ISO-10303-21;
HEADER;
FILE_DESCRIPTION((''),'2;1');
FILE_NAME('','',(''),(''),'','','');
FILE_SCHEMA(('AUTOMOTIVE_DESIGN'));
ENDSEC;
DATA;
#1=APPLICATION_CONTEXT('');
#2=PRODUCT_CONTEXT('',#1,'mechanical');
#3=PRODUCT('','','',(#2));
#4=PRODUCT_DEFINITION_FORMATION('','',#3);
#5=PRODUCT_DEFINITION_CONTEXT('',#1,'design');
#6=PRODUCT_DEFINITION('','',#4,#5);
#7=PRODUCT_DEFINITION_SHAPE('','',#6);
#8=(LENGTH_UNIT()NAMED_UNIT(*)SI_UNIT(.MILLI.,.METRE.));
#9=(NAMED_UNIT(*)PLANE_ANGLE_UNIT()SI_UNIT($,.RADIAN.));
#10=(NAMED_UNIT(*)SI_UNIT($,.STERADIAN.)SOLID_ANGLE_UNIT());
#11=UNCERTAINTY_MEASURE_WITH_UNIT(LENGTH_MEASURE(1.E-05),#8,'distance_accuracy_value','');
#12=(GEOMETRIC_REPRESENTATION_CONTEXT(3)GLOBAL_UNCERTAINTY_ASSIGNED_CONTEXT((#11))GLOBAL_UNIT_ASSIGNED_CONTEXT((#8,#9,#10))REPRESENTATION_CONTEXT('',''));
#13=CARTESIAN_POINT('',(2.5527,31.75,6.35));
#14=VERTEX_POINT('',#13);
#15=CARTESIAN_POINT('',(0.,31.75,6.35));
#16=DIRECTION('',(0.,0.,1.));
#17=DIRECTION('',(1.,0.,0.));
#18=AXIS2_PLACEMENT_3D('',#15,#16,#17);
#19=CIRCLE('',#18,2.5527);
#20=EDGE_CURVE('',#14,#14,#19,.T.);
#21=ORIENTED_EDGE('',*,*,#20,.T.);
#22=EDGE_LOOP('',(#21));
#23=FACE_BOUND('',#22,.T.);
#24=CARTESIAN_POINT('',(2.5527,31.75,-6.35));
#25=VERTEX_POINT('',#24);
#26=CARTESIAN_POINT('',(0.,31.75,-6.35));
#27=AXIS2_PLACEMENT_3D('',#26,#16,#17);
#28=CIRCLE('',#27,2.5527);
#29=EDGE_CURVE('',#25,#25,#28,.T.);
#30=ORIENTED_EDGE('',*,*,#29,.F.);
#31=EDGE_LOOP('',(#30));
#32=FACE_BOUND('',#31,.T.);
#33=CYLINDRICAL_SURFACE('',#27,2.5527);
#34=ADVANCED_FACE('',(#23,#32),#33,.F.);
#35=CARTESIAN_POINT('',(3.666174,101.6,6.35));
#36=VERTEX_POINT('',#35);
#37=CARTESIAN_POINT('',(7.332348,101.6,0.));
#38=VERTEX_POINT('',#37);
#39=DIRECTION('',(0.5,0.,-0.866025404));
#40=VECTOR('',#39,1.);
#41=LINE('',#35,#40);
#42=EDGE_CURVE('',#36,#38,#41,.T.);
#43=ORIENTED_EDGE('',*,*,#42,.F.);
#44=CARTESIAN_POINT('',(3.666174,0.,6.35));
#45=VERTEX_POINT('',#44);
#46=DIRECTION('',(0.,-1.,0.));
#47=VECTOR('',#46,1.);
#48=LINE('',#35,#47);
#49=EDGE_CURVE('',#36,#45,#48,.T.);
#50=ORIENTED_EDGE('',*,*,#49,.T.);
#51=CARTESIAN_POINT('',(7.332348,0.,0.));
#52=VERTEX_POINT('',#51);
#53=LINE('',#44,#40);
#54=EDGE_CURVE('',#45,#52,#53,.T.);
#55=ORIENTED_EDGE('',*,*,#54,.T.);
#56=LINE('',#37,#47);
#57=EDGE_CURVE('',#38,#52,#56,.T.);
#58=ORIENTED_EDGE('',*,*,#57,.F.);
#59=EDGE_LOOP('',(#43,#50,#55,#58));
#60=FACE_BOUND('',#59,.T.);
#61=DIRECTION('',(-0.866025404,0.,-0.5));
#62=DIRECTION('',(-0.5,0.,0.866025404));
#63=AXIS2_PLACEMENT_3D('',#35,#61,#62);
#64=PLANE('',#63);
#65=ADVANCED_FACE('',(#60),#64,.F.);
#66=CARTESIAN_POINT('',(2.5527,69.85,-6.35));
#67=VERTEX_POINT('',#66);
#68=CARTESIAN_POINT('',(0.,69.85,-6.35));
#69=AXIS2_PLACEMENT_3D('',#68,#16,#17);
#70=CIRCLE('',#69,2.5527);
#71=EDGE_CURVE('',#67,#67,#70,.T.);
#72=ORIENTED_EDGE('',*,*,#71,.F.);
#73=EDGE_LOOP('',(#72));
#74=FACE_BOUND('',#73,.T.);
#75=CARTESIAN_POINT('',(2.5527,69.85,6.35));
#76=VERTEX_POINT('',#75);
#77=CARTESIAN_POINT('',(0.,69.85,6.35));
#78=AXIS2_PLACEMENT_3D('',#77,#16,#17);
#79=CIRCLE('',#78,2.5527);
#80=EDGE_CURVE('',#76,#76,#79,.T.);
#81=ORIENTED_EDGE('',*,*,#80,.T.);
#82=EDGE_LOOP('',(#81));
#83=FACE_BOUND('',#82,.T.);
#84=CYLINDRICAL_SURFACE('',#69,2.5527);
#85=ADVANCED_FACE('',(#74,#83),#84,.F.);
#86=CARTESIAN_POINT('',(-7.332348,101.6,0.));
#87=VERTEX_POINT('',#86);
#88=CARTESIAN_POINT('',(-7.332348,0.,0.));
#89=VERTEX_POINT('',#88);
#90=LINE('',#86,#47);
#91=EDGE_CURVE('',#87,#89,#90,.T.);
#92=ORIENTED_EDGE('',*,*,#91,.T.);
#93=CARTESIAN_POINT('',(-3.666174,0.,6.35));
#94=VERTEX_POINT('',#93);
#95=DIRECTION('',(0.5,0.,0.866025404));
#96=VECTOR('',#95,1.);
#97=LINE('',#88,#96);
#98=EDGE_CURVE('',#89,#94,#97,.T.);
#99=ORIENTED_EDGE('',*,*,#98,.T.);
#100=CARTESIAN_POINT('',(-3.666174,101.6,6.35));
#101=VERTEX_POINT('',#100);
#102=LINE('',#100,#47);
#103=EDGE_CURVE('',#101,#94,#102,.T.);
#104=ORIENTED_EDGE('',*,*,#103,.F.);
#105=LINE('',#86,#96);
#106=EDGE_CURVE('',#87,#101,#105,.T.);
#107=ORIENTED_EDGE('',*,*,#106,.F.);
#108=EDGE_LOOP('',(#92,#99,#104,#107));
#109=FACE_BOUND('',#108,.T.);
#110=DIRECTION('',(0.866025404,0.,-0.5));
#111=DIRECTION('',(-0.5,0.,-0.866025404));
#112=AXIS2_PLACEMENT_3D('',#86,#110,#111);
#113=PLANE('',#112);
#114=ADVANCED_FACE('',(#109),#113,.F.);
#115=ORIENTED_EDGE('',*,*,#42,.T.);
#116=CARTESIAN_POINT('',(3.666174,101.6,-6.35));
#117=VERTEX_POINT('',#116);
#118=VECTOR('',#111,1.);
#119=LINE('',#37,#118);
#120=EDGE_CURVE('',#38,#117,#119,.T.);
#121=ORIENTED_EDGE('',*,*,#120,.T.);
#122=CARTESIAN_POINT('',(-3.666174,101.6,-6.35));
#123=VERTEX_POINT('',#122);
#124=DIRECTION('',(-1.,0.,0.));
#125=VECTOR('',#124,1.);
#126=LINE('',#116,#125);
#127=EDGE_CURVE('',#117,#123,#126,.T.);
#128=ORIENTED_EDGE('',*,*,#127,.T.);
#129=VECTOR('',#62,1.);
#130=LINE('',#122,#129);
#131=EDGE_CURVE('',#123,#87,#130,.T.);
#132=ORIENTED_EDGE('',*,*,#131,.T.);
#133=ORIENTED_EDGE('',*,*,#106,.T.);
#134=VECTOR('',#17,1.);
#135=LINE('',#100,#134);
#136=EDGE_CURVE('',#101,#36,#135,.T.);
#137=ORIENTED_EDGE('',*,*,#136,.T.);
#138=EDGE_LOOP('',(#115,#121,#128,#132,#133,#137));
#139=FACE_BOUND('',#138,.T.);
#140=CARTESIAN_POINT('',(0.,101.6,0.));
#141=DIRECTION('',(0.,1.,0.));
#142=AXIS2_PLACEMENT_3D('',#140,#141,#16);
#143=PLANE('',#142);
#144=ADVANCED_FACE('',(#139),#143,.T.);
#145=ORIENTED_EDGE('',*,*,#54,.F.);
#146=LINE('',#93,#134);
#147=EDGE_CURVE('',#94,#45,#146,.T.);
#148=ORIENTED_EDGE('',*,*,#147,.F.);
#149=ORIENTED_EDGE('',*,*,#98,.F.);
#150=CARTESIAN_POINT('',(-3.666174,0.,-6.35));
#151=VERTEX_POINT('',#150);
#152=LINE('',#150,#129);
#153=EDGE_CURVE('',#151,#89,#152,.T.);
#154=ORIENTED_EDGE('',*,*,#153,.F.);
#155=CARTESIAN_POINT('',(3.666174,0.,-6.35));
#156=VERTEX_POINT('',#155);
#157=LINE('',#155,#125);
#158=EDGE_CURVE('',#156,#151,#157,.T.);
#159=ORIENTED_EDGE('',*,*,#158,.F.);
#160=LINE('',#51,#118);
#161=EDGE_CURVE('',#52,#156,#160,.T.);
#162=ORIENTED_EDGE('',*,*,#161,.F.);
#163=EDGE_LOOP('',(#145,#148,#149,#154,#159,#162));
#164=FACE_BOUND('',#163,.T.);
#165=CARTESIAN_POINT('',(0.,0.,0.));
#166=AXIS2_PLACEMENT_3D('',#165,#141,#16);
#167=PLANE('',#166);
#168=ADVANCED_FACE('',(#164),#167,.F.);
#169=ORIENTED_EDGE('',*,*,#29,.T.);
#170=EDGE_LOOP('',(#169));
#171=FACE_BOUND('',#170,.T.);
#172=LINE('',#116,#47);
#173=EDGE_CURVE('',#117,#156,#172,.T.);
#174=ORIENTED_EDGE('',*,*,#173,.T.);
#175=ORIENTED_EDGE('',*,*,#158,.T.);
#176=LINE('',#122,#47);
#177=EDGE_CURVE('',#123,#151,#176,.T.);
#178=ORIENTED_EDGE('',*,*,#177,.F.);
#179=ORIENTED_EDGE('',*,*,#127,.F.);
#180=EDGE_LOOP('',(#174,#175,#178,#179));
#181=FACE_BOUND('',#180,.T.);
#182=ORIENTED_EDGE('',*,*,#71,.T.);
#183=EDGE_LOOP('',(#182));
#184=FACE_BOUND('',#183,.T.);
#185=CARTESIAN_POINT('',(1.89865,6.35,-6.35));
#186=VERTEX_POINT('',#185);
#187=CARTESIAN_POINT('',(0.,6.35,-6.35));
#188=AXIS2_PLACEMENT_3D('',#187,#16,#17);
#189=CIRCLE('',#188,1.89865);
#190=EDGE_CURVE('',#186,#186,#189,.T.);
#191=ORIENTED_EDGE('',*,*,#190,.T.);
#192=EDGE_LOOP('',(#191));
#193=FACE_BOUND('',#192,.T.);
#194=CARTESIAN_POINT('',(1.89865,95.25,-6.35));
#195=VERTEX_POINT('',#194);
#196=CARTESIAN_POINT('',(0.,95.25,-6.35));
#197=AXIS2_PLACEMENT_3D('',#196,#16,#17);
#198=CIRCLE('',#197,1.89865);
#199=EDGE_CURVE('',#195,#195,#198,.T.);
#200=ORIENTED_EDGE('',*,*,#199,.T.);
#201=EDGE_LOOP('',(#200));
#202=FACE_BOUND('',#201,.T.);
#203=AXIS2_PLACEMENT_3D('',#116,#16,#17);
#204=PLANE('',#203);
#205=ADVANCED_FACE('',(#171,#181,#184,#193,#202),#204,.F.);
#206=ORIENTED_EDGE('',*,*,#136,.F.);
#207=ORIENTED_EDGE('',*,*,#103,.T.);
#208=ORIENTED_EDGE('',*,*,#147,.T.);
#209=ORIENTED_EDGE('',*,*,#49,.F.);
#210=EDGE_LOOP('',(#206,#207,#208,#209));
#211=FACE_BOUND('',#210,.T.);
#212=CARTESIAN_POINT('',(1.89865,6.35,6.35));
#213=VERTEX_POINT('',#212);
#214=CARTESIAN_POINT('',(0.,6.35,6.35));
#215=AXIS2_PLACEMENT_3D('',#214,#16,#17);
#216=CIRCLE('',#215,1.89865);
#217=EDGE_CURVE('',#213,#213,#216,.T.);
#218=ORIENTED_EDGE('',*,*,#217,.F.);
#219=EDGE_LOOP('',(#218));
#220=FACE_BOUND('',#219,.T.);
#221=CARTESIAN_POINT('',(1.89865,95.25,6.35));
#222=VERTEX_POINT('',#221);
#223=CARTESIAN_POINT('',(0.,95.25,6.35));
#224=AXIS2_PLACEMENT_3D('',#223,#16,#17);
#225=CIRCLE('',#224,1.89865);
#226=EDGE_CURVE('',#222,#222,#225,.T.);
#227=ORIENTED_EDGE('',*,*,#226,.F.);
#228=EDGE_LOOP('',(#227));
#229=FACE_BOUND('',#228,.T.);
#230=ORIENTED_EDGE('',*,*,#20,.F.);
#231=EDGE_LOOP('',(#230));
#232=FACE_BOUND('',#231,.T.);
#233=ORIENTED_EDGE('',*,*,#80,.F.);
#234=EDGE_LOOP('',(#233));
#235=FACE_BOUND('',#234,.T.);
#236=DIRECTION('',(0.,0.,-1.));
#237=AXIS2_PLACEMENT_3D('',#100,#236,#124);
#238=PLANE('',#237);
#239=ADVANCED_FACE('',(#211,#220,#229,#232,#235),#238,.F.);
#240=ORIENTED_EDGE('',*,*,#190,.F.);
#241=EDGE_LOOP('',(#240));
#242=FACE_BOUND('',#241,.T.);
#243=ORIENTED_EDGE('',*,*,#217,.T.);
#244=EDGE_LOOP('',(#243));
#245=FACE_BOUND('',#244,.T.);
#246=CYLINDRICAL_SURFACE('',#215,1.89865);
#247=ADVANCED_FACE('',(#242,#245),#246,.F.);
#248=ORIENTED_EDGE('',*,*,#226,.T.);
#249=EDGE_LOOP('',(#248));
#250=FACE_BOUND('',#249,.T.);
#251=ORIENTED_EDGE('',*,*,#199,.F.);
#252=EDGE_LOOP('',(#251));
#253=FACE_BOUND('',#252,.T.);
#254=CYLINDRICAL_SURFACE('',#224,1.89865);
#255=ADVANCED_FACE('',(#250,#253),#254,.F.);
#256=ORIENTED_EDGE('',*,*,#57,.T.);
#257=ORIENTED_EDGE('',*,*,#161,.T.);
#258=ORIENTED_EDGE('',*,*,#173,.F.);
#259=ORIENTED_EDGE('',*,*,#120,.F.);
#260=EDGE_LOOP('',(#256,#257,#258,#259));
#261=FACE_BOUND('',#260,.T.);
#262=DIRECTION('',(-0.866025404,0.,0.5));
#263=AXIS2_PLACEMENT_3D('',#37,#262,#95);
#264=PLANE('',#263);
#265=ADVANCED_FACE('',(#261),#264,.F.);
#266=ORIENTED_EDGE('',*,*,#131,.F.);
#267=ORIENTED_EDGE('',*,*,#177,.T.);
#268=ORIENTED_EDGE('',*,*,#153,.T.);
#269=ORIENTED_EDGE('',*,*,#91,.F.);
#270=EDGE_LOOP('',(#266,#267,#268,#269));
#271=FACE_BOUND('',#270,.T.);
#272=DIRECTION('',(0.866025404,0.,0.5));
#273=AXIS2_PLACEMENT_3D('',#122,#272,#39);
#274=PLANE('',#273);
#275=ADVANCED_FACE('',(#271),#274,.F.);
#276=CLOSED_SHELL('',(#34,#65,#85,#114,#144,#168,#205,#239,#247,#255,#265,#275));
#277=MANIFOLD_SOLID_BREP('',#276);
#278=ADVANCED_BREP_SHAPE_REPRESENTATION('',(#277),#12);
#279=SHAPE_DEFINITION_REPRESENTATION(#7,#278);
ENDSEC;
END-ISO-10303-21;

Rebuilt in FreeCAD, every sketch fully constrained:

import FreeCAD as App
import Part
import Sketcher
Q = App.Units.Quantity

doc = App.newDocument("Part")
body = doc.addObject("PartDesign::Body", "Body")

# Sketch on XZ plane
sketch1 = body.newObject("Sketcher::SketchObject", "Sketch")
sketch1.AttachmentSupport = (doc.getObject("XZ_Plane"), [""])
sketch1.MapMode = "FlatFace"
sketch1.addGeometry([
    Part.LineSegment(App.Vector(7, 0, 0), App.Vector(4, -6, 0)),  # 0
    Part.LineSegment(App.Vector(4, -6, 0), App.Vector(-4, -6, 0)),  # 1
    Part.LineSegment(App.Vector(-4, -6, 0), App.Vector(-7, 0, 0)),  # 2
    Part.LineSegment(App.Vector(-7, 0, 0), App.Vector(-4, 6, 0)),  # 3
    Part.LineSegment(App.Vector(-4, 6, 0), App.Vector(4, 6, 0)),  # 4
    Part.LineSegment(App.Vector(4, 6, 0), App.Vector(7, 0, 0)),  # 5
], False)
sketch1.addConstraint([
    Sketcher.Constraint("Coincident", 0, 2, 1, 1),
    Sketcher.Constraint("Coincident", 1, 2, 2, 1),
    Sketcher.Constraint("Coincident", 2, 2, 3, 1),
    Sketcher.Constraint("Coincident", 3, 2, 4, 1),
    Sketcher.Constraint("Coincident", 4, 2, 5, 1),
    Sketcher.Constraint("Coincident", 5, 2, 0, 1),
    Sketcher.Constraint("Horizontal", 1),
    Sketcher.Constraint("Horizontal", 4),
    Sketcher.Constraint("Symmetric", 0, 2, 3, 2, -1, 1),
    Sketcher.Constraint("Symmetric", 2, 2, 5, 2, -1, 1),
    Sketcher.Constraint("PointOnObject", 2, 2, -1),
    Sketcher.Constraint("Parallel", 2, 5),
    Sketcher.Constraint("Vertical", 1, 2, 3, 2),
    Sketcher.Constraint("Angle", 0, Q("-120 deg")),
    Sketcher.Constraint("DistanceY", 1, 2, 3, 2, Q("0.5 in")),
    Sketcher.Constraint("DistanceX", 1, 2, 1, 1, 7.332348),
])
pad1 = body.newObject("PartDesign::Pad", "Pad")
pad1.Profile = sketch1
pad1.Length = Q("4 in")
pad1.Reversed = True

# Sketch on XY plane
sketch2 = body.newObject("Sketcher::SketchObject", "Sketch001")
sketch2.AttachmentSupport = (doc.getObject("XY_Plane"), [""])
sketch2.MapMode = "FlatFace"
sketch2.AttachmentOffset = App.Placement(App.Vector(0, 0, 0.25 * 25.4), App.Rotation())
sketch2.addGeometry([
    Part.Circle(App.Vector(0, 95.2, 0), App.Vector(0, 0, 1), 1.9),
    Part.Circle(App.Vector(0, 6.3, 0), App.Vector(0, 0, 1), 1.9),
], False)
sketch2.addConstraint([
    Sketcher.Constraint("Equal", 0, 1),
    Sketcher.Constraint("PointOnObject", 0, 3, -2),
    Sketcher.Constraint("PointOnObject", 1, 3, -2),
    Sketcher.Constraint("Diameter", 0, Q("0.1495 in")),
    Sketcher.Constraint("DistanceY", 1, 3, 0, 3, Q("3.5 in")),
    Sketcher.Constraint("DistanceY", -1, 1, 0, 3, Q("3.75 in")),
])
doc.recompute()
hole = body.newObject("PartDesign::Hole", "Hole")
hole.Profile = sketch2
hole.ThreadType = "None"
hole.Diameter = Q("0.1495 in")
hole.DepthType = "ThroughAll"

# Sketch on XY plane
sketch3 = body.newObject("Sketcher::SketchObject", "Sketch002")
sketch3.AttachmentSupport = (doc.getObject("XY_Plane"), [""])
sketch3.MapMode = "FlatFace"
sketch3.AttachmentOffset = App.Placement(App.Vector(0, 0, 0.25 * 25.4), App.Rotation())
sketch3.addGeometry([
    Part.Circle(App.Vector(0, 31.8, 0), App.Vector(0, 0, 1), 2.6),
    Part.Circle(App.Vector(0, 69.8, 0), App.Vector(0, 0, 1), 2.6),
], False)
sketch3.addConstraint([
    Sketcher.Constraint("Equal", 0, 1),
    Sketcher.Constraint("PointOnObject", 0, 3, -2),
    Sketcher.Constraint("PointOnObject", 1, 3, -2),
    Sketcher.Constraint("Diameter", 0, Q("0.201 in")),
    Sketcher.Constraint("DistanceY", 0, 3, 1, 3, Q("1.5 in")),
    Sketcher.Constraint("DistanceY", -1, 1, 0, 3, Q("1.25 in")),
])
pocket1 = body.newObject("PartDesign::Pocket", "Pocket")
pocket1.Profile = sketch3
pocket1.Type = "ThroughAll"

doc.recompute()
